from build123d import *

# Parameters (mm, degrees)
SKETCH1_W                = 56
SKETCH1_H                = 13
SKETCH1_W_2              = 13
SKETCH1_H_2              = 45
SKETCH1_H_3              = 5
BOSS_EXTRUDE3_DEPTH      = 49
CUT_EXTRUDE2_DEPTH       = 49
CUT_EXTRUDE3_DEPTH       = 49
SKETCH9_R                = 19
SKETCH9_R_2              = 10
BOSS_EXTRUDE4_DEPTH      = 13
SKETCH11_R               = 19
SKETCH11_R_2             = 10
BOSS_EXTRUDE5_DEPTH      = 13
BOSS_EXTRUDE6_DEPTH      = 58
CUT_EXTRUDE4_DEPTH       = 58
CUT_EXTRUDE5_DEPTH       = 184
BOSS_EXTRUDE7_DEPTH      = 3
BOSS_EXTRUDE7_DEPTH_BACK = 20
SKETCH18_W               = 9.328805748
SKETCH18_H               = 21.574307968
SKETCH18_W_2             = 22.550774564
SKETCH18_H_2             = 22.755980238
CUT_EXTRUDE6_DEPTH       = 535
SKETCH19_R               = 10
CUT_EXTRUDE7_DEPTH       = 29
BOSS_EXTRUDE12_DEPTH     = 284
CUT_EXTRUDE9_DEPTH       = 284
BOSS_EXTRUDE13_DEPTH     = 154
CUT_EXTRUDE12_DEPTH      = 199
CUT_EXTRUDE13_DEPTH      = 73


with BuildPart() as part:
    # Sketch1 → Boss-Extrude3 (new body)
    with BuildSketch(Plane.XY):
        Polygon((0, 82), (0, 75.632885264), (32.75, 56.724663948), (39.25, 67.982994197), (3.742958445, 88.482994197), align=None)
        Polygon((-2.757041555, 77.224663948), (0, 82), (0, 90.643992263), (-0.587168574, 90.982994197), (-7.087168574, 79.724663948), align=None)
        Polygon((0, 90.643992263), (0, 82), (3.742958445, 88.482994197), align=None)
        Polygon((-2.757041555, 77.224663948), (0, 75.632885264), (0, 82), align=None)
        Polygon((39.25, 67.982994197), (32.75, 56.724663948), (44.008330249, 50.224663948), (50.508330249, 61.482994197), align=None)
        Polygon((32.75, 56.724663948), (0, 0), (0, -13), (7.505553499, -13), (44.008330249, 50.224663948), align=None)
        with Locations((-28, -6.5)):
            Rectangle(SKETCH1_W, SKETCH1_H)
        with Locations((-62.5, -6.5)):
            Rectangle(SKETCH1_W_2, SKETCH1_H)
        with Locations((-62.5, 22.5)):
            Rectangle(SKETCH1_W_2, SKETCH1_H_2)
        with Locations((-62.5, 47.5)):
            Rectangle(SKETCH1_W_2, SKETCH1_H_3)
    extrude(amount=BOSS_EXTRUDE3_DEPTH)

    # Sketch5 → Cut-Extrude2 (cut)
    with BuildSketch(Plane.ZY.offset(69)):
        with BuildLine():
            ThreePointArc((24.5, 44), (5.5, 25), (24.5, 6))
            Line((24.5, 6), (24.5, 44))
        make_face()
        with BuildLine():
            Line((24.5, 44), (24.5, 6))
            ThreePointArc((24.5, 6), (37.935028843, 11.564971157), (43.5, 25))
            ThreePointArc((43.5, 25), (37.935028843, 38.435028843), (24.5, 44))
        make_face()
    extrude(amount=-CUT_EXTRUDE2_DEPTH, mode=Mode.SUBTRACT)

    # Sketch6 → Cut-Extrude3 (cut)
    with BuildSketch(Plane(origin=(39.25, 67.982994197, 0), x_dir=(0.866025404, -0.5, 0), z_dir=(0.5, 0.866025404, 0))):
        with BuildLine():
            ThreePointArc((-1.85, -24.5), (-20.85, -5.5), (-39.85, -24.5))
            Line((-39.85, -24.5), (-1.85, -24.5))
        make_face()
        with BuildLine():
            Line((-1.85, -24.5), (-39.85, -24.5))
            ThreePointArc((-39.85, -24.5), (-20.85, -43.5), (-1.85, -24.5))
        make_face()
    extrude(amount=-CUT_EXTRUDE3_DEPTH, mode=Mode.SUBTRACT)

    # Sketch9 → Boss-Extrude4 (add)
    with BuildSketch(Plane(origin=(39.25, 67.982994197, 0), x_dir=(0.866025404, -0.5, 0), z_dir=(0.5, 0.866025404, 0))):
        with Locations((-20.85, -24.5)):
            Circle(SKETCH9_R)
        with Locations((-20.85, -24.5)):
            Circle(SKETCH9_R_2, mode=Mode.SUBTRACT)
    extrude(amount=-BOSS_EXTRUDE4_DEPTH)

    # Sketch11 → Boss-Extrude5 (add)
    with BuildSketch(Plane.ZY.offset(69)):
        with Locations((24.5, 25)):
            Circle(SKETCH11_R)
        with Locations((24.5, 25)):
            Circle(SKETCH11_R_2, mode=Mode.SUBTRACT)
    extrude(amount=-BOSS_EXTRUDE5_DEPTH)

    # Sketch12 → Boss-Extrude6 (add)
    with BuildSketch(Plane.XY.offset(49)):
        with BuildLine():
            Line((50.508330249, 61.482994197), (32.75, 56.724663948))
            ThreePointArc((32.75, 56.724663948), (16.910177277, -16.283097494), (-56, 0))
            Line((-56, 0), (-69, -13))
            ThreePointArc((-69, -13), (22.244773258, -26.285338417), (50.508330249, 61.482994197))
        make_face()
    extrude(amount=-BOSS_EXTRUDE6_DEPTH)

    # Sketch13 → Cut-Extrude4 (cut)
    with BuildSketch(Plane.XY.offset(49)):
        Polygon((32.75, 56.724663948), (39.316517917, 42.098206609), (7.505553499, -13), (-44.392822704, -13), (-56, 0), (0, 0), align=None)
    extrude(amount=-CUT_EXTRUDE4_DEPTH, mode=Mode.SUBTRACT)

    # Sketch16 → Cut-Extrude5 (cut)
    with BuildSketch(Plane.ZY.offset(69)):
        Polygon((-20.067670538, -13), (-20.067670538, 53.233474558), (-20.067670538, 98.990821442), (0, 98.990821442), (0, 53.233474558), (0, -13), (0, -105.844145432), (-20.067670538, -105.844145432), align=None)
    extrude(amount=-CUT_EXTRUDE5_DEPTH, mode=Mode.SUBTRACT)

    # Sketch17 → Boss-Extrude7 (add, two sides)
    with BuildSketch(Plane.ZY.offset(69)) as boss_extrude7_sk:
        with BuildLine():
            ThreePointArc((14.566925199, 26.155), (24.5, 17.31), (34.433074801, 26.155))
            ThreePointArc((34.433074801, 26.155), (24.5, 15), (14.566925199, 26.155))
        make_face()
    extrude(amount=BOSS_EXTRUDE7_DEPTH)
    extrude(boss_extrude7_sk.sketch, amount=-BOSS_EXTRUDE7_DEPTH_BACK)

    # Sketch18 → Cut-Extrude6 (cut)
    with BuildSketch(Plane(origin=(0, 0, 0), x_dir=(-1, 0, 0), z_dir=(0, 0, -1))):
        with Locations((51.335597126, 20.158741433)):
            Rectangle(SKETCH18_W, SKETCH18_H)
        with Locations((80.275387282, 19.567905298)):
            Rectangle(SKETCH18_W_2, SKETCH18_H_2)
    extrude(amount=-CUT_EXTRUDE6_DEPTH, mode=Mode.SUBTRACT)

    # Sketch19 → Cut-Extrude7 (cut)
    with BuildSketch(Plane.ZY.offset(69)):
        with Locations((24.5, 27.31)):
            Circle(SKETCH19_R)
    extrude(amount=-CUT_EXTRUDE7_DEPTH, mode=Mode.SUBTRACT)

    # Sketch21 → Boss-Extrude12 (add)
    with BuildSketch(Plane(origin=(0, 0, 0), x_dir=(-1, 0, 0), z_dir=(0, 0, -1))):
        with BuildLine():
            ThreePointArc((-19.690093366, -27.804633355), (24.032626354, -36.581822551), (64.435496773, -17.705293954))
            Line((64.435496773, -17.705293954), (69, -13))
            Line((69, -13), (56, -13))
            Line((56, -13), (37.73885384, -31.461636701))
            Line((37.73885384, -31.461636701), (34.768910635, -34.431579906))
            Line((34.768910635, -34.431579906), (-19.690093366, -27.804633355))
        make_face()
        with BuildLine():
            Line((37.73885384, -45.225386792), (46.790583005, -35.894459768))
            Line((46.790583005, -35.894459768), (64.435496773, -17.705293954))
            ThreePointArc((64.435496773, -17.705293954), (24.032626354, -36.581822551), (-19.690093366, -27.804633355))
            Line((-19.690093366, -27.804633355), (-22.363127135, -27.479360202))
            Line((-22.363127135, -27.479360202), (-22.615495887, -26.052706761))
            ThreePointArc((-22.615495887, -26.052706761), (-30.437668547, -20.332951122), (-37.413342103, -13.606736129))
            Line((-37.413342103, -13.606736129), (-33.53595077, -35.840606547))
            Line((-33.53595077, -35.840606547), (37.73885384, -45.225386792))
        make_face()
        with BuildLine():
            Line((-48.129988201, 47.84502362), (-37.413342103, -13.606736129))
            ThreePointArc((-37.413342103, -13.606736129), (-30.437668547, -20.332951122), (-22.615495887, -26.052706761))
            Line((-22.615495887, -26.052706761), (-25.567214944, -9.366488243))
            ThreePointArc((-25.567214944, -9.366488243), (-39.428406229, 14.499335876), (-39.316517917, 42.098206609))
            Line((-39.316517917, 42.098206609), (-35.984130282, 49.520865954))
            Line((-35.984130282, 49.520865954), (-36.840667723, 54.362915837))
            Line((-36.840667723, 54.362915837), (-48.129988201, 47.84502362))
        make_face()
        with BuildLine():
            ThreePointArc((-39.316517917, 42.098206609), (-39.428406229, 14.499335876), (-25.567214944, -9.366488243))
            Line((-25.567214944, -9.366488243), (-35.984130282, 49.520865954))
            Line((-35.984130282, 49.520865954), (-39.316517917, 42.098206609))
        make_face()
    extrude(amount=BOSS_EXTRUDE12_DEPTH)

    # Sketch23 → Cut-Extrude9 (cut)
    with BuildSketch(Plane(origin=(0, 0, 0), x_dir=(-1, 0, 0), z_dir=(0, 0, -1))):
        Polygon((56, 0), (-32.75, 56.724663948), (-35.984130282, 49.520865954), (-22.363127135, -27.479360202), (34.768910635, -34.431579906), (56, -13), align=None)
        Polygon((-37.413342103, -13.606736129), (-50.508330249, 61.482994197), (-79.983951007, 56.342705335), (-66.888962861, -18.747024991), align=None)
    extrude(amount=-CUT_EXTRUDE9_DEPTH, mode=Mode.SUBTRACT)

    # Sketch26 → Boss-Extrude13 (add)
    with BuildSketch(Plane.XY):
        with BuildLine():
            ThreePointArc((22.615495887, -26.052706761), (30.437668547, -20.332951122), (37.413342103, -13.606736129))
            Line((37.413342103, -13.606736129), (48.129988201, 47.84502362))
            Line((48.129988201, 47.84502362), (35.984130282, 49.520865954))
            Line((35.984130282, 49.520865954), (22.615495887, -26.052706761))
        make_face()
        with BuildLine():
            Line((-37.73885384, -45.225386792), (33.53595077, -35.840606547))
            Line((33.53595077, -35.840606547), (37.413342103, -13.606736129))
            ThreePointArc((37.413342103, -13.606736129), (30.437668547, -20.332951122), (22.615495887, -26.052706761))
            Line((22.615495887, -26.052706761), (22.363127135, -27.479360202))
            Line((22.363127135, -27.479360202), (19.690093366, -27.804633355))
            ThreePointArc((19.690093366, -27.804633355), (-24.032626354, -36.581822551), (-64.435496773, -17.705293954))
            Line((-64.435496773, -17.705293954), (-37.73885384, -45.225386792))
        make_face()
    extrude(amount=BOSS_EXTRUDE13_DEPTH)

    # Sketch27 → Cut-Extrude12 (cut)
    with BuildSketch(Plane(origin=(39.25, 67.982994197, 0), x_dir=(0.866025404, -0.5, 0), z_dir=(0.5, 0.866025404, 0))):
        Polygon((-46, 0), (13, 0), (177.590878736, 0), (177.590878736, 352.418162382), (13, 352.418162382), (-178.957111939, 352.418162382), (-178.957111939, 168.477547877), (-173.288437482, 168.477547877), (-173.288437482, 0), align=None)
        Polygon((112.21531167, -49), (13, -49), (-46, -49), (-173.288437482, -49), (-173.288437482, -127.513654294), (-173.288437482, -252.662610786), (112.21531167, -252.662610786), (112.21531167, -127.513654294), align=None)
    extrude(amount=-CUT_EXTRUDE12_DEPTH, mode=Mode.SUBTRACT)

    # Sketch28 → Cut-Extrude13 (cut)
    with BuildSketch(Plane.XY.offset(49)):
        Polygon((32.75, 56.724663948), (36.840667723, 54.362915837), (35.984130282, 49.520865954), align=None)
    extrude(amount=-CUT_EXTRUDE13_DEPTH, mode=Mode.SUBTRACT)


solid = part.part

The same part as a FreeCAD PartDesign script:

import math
import FreeCAD as App
import Part
import Sketcher

V = App.Vector
Q = App.Units.Quantity

doc = App.newDocument("Part")
body = doc.addObject("PartDesign::Body", "Body")

# Sketch on XY plane
sketch1 = doc.addObject("Sketcher::SketchObject", "Sketch")
body.addObject(sketch1)
sketch1.AttachmentSupport = (doc.XY_Plane, [""])
sketch1.MapMode = "FlatFace"
sketch1.addGeometry(Part.LineSegment(V(0, 75.6, 0), V(32.8, 56.7, 0)), False)
sketch1.addGeometry(Part.LineSegment(V(32.8, 56.7, 0), V(0, 0, 0)), False)
sketch1.addGeometry(Part.LineSegment(V(0, 0, 0), V(-56, 0, 0)), False)
sketch1.addGeometry(Part.LineSegment(V(-56, 0, 0), V(-56, 50, 0)), False)
sketch1.addGeometry(Part.LineSegment(V(-56, 50, 0), V(-69, 50, 0)), False)
sketch1.addGeometry(Part.LineSegment(V(-69, 50, 0), V(-69, -13, 0)), False)
sketch1.addGeometry(Part.LineSegment(V(-69, -13, 0), V(7.5, -13, 0)), False)
sketch1.addGeometry(Part.LineSegment(V(7.5, -13, 0), V(44, 50.2, 0)), False)
sketch1.addGeometry(Part.LineSegment(V(44, 50.2, 0), V(50.5, 61.5, 0)), False)
sketch1.addGeometry(Part.LineSegment(V(50.5, 61.5, 0), V(39.2, 68, 0)), False)
sketch1.addGeometry(Part.LineSegment(V(39.2, 68, 0), V(3.7, 88.5, 0)), False)
sketch1.addGeometry(Part.LineSegment(V(3.7, 88.5, 0), V(0, 90.6, 0)), False)
sketch1.addGeometry(Part.LineSegment(V(0, 90.6, 0), V(-0.6, 91, 0)), False)
sketch1.addGeometry(Part.LineSegment(V(-0.6, 91, 0), V(-7.1, 79.7, 0)), False)
sketch1.addGeometry(Part.LineSegment(V(-7.1, 79.7, 0), V(-2.8, 77.2, 0)), False)
sketch1.addGeometry(Part.LineSegment(V(-2.8, 77.2, 0), V(0, 75.6, 0)), False)
sketch1.addConstraint(Sketcher.Constraint("Coincident", 0, 2, 1, 1))
sketch1.addConstraint(Sketcher.Constraint("Coincident", 1, 2, 2, 1))
sketch1.addConstraint(Sketcher.Constraint("Coincident", 2, 2, 3, 1))
sketch1.addConstraint(Sketcher.Constraint("Coincident", 3, 2, 4, 1))
sketch1.addConstraint(Sketcher.Constraint("Coincident", 4, 2, 5, 1))
sketch1.addConstraint(Sketcher.Constraint("Coincident", 5, 2, 6, 1))
sketch1.addConstraint(Sketcher.Constraint("Coincident", 6, 2, 7, 1))
sketch1.addConstraint(Sketcher.Constraint("Coincident", 7, 2, 8, 1))
sketch1.addConstraint(Sketcher.Constraint("Coincident", 8, 2, 9, 1))
sketch1.addConstraint(Sketcher.Constraint("Coincident", 9, 2, 10, 1))
sketch1.addConstraint(Sketcher.Constraint("Coincident", 10, 2, 11, 1))
sketch1.addConstraint(Sketcher.Constraint("Coincident", 11, 2, 12, 1))
sketch1.addConstraint(Sketcher.Constraint("Coincident", 12, 2, 13, 1))
sketch1.addConstraint(Sketcher.Constraint("Coincident", 13, 2, 14, 1))
sketch1.addConstraint(Sketcher.Constraint("Coincident", 14, 2, 15, 1))
sketch1.addConstraint(Sketcher.Constraint("Coincident", 15, 2, 0, 1))
sketch1.addConstraint(Sketcher.Constraint("Horizontal", 2))
sketch1.addConstraint(Sketcher.Constraint("Vertical", 3))
sketch1.addConstraint(Sketcher.Constraint("Horizontal", 4))
sketch1.addConstraint(Sketcher.Constraint("Vertical", 5))
sketch1.addConstraint(Sketcher.Constraint("Horizontal", 6))
sketch1.addConstraint(Sketcher.Constraint("Coincident", 1, 2, -1, 1))
sketch1.addConstraint(Sketcher.Constraint("PointOnObject", 11, 2, -2))
sketch1.addConstraint(Sketcher.Constraint("PointOnObject", 15, 2, -2))
sketch1.addConstraint(Sketcher.Constraint("Perpendicular", 0, 1))
sketch1.addConstraint(Sketcher.Constraint("Parallel", 1, 7))
sketch1.addConstraint(Sketcher.Constraint("Parallel", 7, 8))
sketch1.addConstraint(Sketcher.Constraint("Perpendicular", 8, 9))
sketch1.addConstraint(Sketcher.Constraint("Parallel", 9, 10))
sketch1.addConstraint(Sketcher.Constraint("Parallel", 10, 11))
sketch1.addConstraint(Sketcher.Constraint("Parallel", 11, 12))
sketch1.addConstraint(Sketcher.Constraint("Perpendicular", 12, 13))
sketch1.addConstraint(Sketcher.Constraint("Perpendicular", 13, 14))
sketch1.addConstraint(Sketcher.Constraint("Parallel", 14, 15))
sketch1.addConstraint(Sketcher.Constraint("Equal", 8, 9))
sketch1.addConstraint(Sketcher.Constraint("Equal", 9, 13))
sketch1.addConstraint(Sketcher.Constraint("DistanceX", 2, 2, 2, 1, 56.0))
sketch1.addConstraint(Sketcher.Constraint("DistanceX", 4, 2, 4, 1, 13.0))
sketch1.addConstraint(Sketcher.Constraint("DistanceY", 3, 1, 3, 2, 50.0))
sketch1.addConstraint(Sketcher.Constraint("DistanceY", 5, 2, 5, 1, 63.0))
sketch1.addConstraint(Sketcher.Constraint("Angle", 0, Q("-30 deg")))
sketch1.addConstraint(Sketcher.Constraint("Distance", 8, 13.0))
sketch1.addConstraint(Sketcher.Constraint("Distance", 10, 41.0))
sketch1.addConstraint(Sketcher.Constraint("Distance", 14, 5.0))
sketch1.addConstraint(Sketcher.Constraint("DistanceY", 9, 2, 12, 2, 23.0))
sketch1.addConstraint(Sketcher.Constraint("DistanceY", 0, 2, 13, 2, 23.0))
sketch1.addConstraint(Sketcher.Constraint("Distance", 1, 65.5))
pad1 = doc.addObject("PartDesign::Pad", "Pad")
body.addObject(pad1)
pad1.Profile = sketch1
pad1.Length = 49

# Sketch on YZ plane
sketch2 = doc.addObject("Sketcher::SketchObject", "Sketch001")
body.addObject(sketch2)
sketch2.AttachmentSupport = (doc.YZ_Plane, [""])
sketch2.MapMode = "FlatFace"
sketch2.AttachmentOffset = App.Placement(V(0, 0, -69), App.Rotation())
sketch2.addGeometry(Part.ArcOfCircle(Part.Circle(V(25, 24, 0), V(0, 0, 1), 19), math.radians(180), math.radians(360)), False)
sketch2.addGeometry(Part.ArcOfCircle(Part.Circle(V(25, 25, 0), V(0, 0, 1), 19), math.radians(90), math.radians(180)), False)
sketch2.addGeometry(Part.ArcOfCircle(Part.Circle(V(25, 25, 0), V(0, 0, 1), 19), math.radians(0), math.radians(90)), False)
sketch2.addConstraint(Sketcher.Constraint("Tangent", 0, 1, 1, 2))
sketch2.addConstraint(Sketcher.Constraint("Tangent", 1, 1, 2, 2))
sketch2.addConstraint(Sketcher.Constraint("Tangent", 2, 1, 0, 2))
sketch2.addConstraint(Sketcher.Constraint("Horizontal", 2, 3, 0, 1))
sketch2.addConstraint(Sketcher.Constraint("Horizontal", 0, 1, 2, 1))
sketch2.addConstraint(Sketcher.Constraint("Vertical", 2, 3, 1, 1))
sketch2.addConstraint(Sketcher.Constraint("Radius", 0, 19.0))
sketch2.addConstraint(Sketcher.Constraint("DistanceX", -1, 1, 0, 3, 25.0))
sketch2.addConstraint(Sketcher.Constraint("DistanceY", -1, 1, 0, 3, 24.5))
pocket1 = doc.addObject("PartDesign::Pocket", "Pocket")
body.addObject(pocket1)
pocket1.Profile = sketch2
pocket1.Length = 49
pocket1.Reversed = True

# Sketch on an angled plane
sketch3 = doc.addObject("Sketcher::SketchObject", "Sketch002")
body.addObject(sketch3)
sketch3.Placement = App.Placement(V(39.25, 67.982994, 0), App.Rotation(V(0.866025404, -0.5, 0), V(0, 0, -1), V(0.5, 0.866025404, 0), "ZXY"))
sketch3.addGeometry(Part.Circle(V(-21, -25, 0), V(0, 0, 1), 19), False)
sketch3.addConstraint(Sketcher.Constraint("Diameter", 0, 38.0))
sketch3.addConstraint(Sketcher.Constraint("DistanceY", 0, 3, -1, 1, 24.5))
sketch3.addConstraint(Sketcher.Constraint("DistanceX", 0, 3, -1, 1, 20.85))
pocket2 = doc.addObject("PartDesign::Pocket", "Pocket001")
body.addObject(pocket2)
pocket2.Profile = sketch3
pocket2.Length = 49

# Sketch on an angled plane
sketch4 = doc.addObject("Sketcher::SketchObject", "Sketch003")
body.addObject(sketch4)
sketch4.Placement = App.Placement(V(39.25, 67.982994, 0), App.Rotation(V(0.866025404, -0.5, 0), V(0, 0, -1), V(0.5, 0.866025404, 0), "ZXY"))
sketch4.addGeometry(Part.Circle(V(-21, -25, 0), V(0, 0, 1), 19), False)
sketch4.addGeometry(Part.Circle(V(-21, -25, 0), V(0, 0, 1), 10), False)
sketch4.addConstraint(Sketcher.Constraint("Coincident", 1, 3, 0, 3))
sketch4.addConstraint(Sketcher.Constraint("Diameter", 0, 38.0))
sketch4.addConstraint(Sketcher.Constraint("Diameter", 1, 20.0))
sketch4.addConstraint(Sketcher.Constraint("DistanceY", 0, 3, -1, 1, 24.5))
sketch4.addConstraint(Sketcher.Constraint("DistanceX", 0, 3, -1, 1, 20.85))
pad2 = doc.addObject("PartDesign::Pad", "Pad001")
body.addObject(pad2)
pad2.Profile = sketch4
pad2.Length = 13
pad2.Reversed = True

# Sketch on YZ plane
sketch5 = doc.addObject("Sketcher::SketchObject", "Sketch004")
body.addObject(sketch5)
sketch5.AttachmentSupport = (doc.YZ_Plane, [""])
sketch5.MapMode = "FlatFace"
sketch5.AttachmentOffset = App.Placement(V(0, 0, -69), App.Rotation())
sketch5.addGeometry(Part.Circle(V(25, 24, 0), V(0, 0, 1), 19), False)
sketch5.addGeometry(Part.Circle(V(25, 24, 0), V(0, 0, 1), 10), False)
sketch5.addConstraint(Sketcher.Constraint("Coincident", 1, 3, 0, 3))
sketch5.addConstraint(Sketcher.Constraint("Diameter", 0, 38.0))
sketch5.addConstraint(Sketcher.Constraint("Diameter", 1, 20.0))
sketch5.addConstraint(Sketcher.Constraint("DistanceX", -1, 1, 0, 3, 25.0))
sketch5.addConstraint(Sketcher.Constraint("DistanceY", -1, 1, 0, 3, 24.5))
pad3 = doc.addObject("PartDesign::Pad", "Pad002")
body.addObject(pad3)
pad3.Profile = sketch5
pad3.Length = 13

# Sketch on XY plane
sketch6 = doc.addObject("Sketcher::SketchObject", "Sketch005")
body.addObject(sketch6)
sketch6.AttachmentSupport = (doc.XY_Plane, [""])
sketch6.MapMode = "FlatFace"
sketch6.AttachmentOffset = App.Placement(V(0, 0, 49), App.Rotation())
sketch6.addGeometry(Part.LineSegment(V(51, 61, 0), V(33, 57, 0)), False)
sketch6.addGeometry(Part.ArcOfCircle(Part.Circle(V(-11, 28, 0), V(0, 0, 1), 53), math.radians(-148), math.radians(33)), False)
sketch6.addGeometry(Part.LineSegment(V(-56, 0, 0), V(-69, -13, 0)), False)
sketch6.addGeometry(Part.ArcOfCircle(Part.Circle(V(-16, 34, 0), V(0, 0, 1), 71), math.radians(-139), math.radians(22)), False)
sketch6.addConstraint(Sketcher.Constraint("Coincident", 0, 2, 1, 2))
sketch6.addConstraint(Sketcher.Constraint("Coincident", 1, 1, 2, 1))
sketch6.addConstraint(Sketcher.Constraint("Coincident", 2, 2, 3, 1))
sketch6.addConstraint(Sketcher.Constraint("Coincident", 3, 2, 0, 1))
sketch6.addConstraint(Sketcher.Constraint("PointOnObject", 1, 1, -1))
sketch6.addConstraint(Sketcher.Constraint("Equal", 0, 2))
sketch6.addConstraint(Sketcher.Constraint("Angle", 0, Q("-165 deg")))
sketch6.addConstraint(Sketcher.Constraint("Angle", 2, Q("-135 deg")))
sketch6.addConstraint(Sketcher.Constraint("DistanceX", 1, 1, -1, 1, 56.0))
sketch6.addConstraint(Sketcher.Constraint("DistanceX", 2, 2, -1, 1, 69.0))
sketch6.addConstraint(Sketcher.Constraint("DistanceX", -1, 1, 0, 2, 32.75))
sketch6.addConstraint(Sketcher.Constraint("Radius", 1, 52.665595))
sketch6.addConstraint(Sketcher.Constraint("Radius", 3, 71.402243))
sketch6.addConstraint(Sketcher.Constraint("DistanceX", 1, 3, -1, 1, 11.452678))
pad4 = doc.addObject("PartDesign::Pad", "Pad003")
body.addObject(pad4)
pad4.Profile = sketch6
pad4.Length = 58
pad4.Reversed = True

# Sketch on XY plane
sketch7 = doc.addObject("Sketcher::SketchObject", "Sketch006")
body.addObject(sketch7)
sketch7.AttachmentSupport = (doc.XY_Plane, [""])
sketch7.MapMode = "FlatFace"
sketch7.AttachmentOffset = App.Placement(V(0, 0, 49), App.Rotation())
sketch7.addGeometry(Part.LineSegment(V(39, 42, 0), V(33, 57, 0)), False)
sketch7.addGeometry(Part.LineSegment(V(33, 57, 0), V(0, 0, 0)), False)
sketch7.addGeometry(Part.LineSegment(V(0, 0, 0), V(-56, 0, 0)), False)
sketch7.addGeometry(Part.LineSegment(V(-56, 0, 0), V(-44, -13, 0)), False)
sketch7.addGeometry(Part.LineSegment(V(-44, -13, 0), V(8, -13, 0)), False)
sketch7.addGeometry(Part.LineSegment(V(8, -13, 0), V(39, 42, 0)), False)
sketch7.addConstraint(Sketcher.Constraint("Coincident", 0, 2, 1, 1))
sketch7.addConstraint(Sketcher.Constraint("Coincident", 1, 2, 2, 1))
sketch7.addConstraint(Sketcher.Constraint("Coincident", 2, 2, 3, 1))
sketch7.addConstraint(Sketcher.Constraint("Coincident", 3, 2, 4, 1))
sketch7.addConstraint(Sketcher.Constraint("Coincident", 4, 2, 5, 1))
sketch7.addConstraint(Sketcher.Constraint("Coincident", 5, 2, 0, 1))
sketch7.addConstraint(Sketcher.Constraint("Horizontal", 2))
sketch7.addConstraint(Sketcher.Constraint("Horizontal", 4))
sketch7.addConstraint(Sketcher.Constraint("Coincident", 1, 2, -1, 1))
sketch7.addConstraint(Sketcher.Constraint("Parallel", 1, 5))
sketch7.addConstraint(Sketcher.Constraint("DistanceX", 2, 2, 2, 1, 56.0))
sketch7.addConstraint(Sketcher.Constraint("Angle", 1, Q("-120 deg")))
sketch7.addConstraint(Sketcher.Constraint("DistanceY", 3, 2, -1, 1, 13.0))
sketch7.addConstraint(Sketcher.Constraint("Distance", 1, 65.5))
sketch7.addConstraint(Sketcher.Constraint("Distance", 5, 63.621929))
sketch7.addConstraint(Sketcher.Constraint("DistanceX", 4, 1, 4, 2, 51.898376))
sketch7.addConstraint(Sketcher.Constraint("Distance", 0, 16.032854))
pocket3 = doc.addObject("PartDesign::Pocket", "Pocket002")
body.addObject(pocket3)
pocket3.Profile = sketch7
pocket3.Length = 58

# Sketch on YZ plane
sketch8 = doc.addObject("Sketcher::SketchObject", "Sketch007")
body.addObject(sketch8)
sketch8.AttachmentSupport = (doc.YZ_Plane, [""])
sketch8.MapMode = "FlatFace"
sketch8.AttachmentOffset = App.Placement(V(0, 0, -69), App.Rotation())
sketch8.addGeometry(Part.LineSegment(V(99, -20, 0), V(-106, -20, 0)), False)
sketch8.addGeometry(Part.LineSegment(V(-106, -20, 0), V(-106, 0, 0)), False)
sketch8.addGeometry(Part.LineSegment(V(-106, 0, 0), V(99, 0, 0)), False)
sketch8.addGeometry(Part.LineSegment(V(99, 0, 0), V(99, -20, 0)), False)
sketch8.addConstraint(Sketcher.Constraint("Coincident", 0, 2, 1, 1))
sketch8.addConstraint(Sketcher.Constraint("Coincident", 1, 2, 2, 1))
sketch8.addConstraint(Sketcher.Constraint("Coincident", 2, 2, 3, 1))
sketch8.addConstraint(Sketcher.Constraint("Coincident", 3, 2, 0, 1))
sketch8.addConstraint(Sketcher.Constraint("Horizontal", 0))
sketch8.addConstraint(Sketcher.Constraint("Vertical", 1))
sketch8.addConstraint(Sketcher.Constraint("Horizontal", 2))
sketch8.addConstraint(Sketcher.Constraint("Vertical", 3))
sketch8.addConstraint(Sketcher.Constraint("PointOnObject", 1, 2, -1))
sketch8.addConstraint(Sketcher.Constraint("DistanceY", 1, 1, 1, 2, 20.067671))
sketch8.addConstraint(Sketcher.Constraint("DistanceX", 0, 2, 0, 1, 204.834967))
sketch8.addConstraint(Sketcher.Constraint("DistanceX", -1, 1, 2, 2, 98.990821))
pocket4 = doc.addObject("PartDesign::Pocket", "Pocket003")
body.addObject(pocket4)
pocket4.Profile = sketch8
pocket4.Length = 184
pocket4.Reversed = True

# Sketch on YZ plane
sketch9 = doc.addObject("Sketcher::SketchObject", "Sketch008")
body.addObject(sketch9)
sketch9.AttachmentSupport = (doc.YZ_Plane, [""])
sketch9.MapMode = "FlatFace"
sketch9.AttachmentOffset = App.Placement(V(0, 0, -69), App.Rotation())
sketch9.addGeometry(Part.ArcOfCircle(Part.Circle(V(27, 24, 0), V(0, 0, 1), 10), math.radians(97), math.radians(263)), False)
sketch9.addGeometry(Part.ArcOfCircle(Part.Circle(V(25, 24, 0), V(0, 0, 1), 10), math.radians(83), math.radians(277)), False)
sketch9.addConstraint(Sketcher.Constraint("Coincident", 0, 1, 1, 1))
sketch9.addConstraint(Sketcher.Constraint("Coincident", 1, 2, 0, 2))
sketch9.addConstraint(Sketcher.Constraint("Equal", 0, 1))
sketch9.addConstraint(Sketcher.Constraint("Horizontal", 0, 3, 1, 3))
sketch9.addConstraint(Sketcher.Constraint("Radius", 0, 10.0))
sketch9.addConstraint(Sketcher.Constraint("DistanceX", -1, 1, 1, 3, 25.0))
sketch9.addConstraint(Sketcher.Constraint("DistanceY", -1, 1, 0, 3, 24.5))
sketch9.addConstraint(Sketcher.Constraint("DistanceX", -1, 1, 0, 3, 27.31))
pad5 = doc.addObject("PartDesign::Pad", "Pad004")
body.addObject(pad5)
pad5.Profile = sketch9
pad5.Type = "TwoLengths"
pad5.Length = 3
pad5.Length2 = 20
pad5.Reversed = True

# Sketch on XY plane
sketch10 = doc.addObject("Sketcher::SketchObject", "Sketch009")
body.addObject(sketch10)
sketch10.AttachmentSupport = (doc.XY_Plane, [""])
sketch10.MapMode = "FlatFace"
sketch10.addGeometry(Part.LineSegment(V(-47, 31, 0), V(-47, 9, 0)), False)
sketch10.addGeometry(Part.LineSegment(V(-47, 9, 0), V(-56, 9, 0)), False)
sketch10.addGeometry(Part.LineSegment(V(-56, 9, 0), V(-56, 31, 0)), False)
sketch10.addGeometry(Part.LineSegment(V(-56, 31, 0), V(-47, 31, 0)), False)
sketch10.addGeometry(Part.LineSegment(V(-69, 31, 0), V(-69, 8, 0)), False)
sketch10.addGeometry(Part.LineSegment(V(-69, 8, 0), V(-92, 8, 0)), False)
sketch10.addGeometry(Part.LineSegment(V(-92, 8, 0), V(-92, 31, 0)), False)
sketch10.addGeometry(Part.LineSegment(V(-92, 31, 0), V(-69, 31, 0)), False)
sketch10.addConstraint(Sketcher.Constraint("Coincident", 0, 2, 1, 1))
sketch10.addConstraint(Sketcher.Constraint("Coincident", 1, 2, 2, 1))
sketch10.addConstraint(Sketcher.Constraint("Coincident", 2, 2, 3, 1))
sketch10.addConstraint(Sketcher.Constraint("Coincident", 3, 2, 0, 1))
sketch10.addConstraint(Sketcher.Constraint("Coincident", 4, 2, 5, 1))
sketch10.addConstraint(Sketcher.Constraint("Coincident", 5, 2, 6, 1))
sketch10.addConstraint(Sketcher.Constraint("Coincident", 6, 2, 7, 1))
sketch10.addConstraint(Sketcher.Constraint("Coincident", 7, 2, 4, 1))
sketch10.addConstraint(Sketcher.Constraint("Vertical", 0))
sketch10.addConstraint(Sketcher.Constraint("Horizontal", 1))
sketch10.addConstraint(Sketcher.Constraint("Vertical", 2))
sketch10.addConstraint(Sketcher.Constraint("Horizontal", 3))
sketch10.addConstraint(Sketcher.Constraint("Vertical", 4))
sketch10.addConstraint(Sketcher.Constraint("Horizontal", 5))
sketch10.addConstraint(Sketcher.Constraint("Vertical", 6))
sketch10.addConstraint(Sketcher.Constraint("Horizontal", 7))
sketch10.addConstraint(Sketcher.Constraint("Horizontal", 3, 2, 6, 2))
sketch10.addConstraint(Sketcher.Constraint("DistanceX", 1, 2, -1, 1, 56.0))
sketch10.addConstraint(Sketcher.Constraint("DistanceX", 4, 2, -1, 1, 69.0))
sketch10.addConstraint(Sketcher.Constraint("DistanceY", 4, 2, 4, 1, 22.75598))
sketch10.addConstraint(Sketcher.Constraint("DistanceX", 1, 2, 1, 1, 9.328806))
sketch10.addConstraint(Sketcher.Constraint("DistanceX", 5, 2, 5, 1, 22.550775))
sketch10.addConstraint(Sketcher.Constraint("DistanceY", 0, 2, 0, 1, 21.574308))
sketch10.addConstraint(Sketcher.Constraint("DistanceY", -1, 1, 0, 2, 9.371587))
pocket5 = doc.addObject("PartDesign::Pocket", "Pocket004")
body.addObject(pocket5)
pocket5.Profile = sketch10
pocket5.Length = 535
pocket5.Reversed = True

# Sketch on YZ plane
sketch11 = doc.addObject("Sketcher::SketchObject", "Sketch010")
body.addObject(sketch11)
sketch11.AttachmentSupport = (doc.YZ_Plane, [""])
sketch11.MapMode = "FlatFace"
sketch11.AttachmentOffset = App.Placement(V(0, 0, -69), App.Rotation())
sketch11.addGeometry(Part.Circle(V(27, 24, 0), V(0, 0, 1), 10), False)
sketch11.addConstraint(Sketcher.Constraint("Diameter", 0, 20.0))
sketch11.addConstraint(Sketcher.Constraint("DistanceY", -1, 1, 0, 3, 24.5))
sketch11.addConstraint(Sketcher.Constraint("DistanceX", -1, 1, 0, 3, 27.31))
pocket6 = doc.addObject("PartDesign::Pocket", "Pocket005")
body.addObject(pocket6)
pocket6.Profile = sketch11
pocket6.Length = 29
pocket6.Reversed = True

# Sketch on XY plane
sketch12 = doc.addObject("Sketcher::SketchObject", "Sketch011")
body.addObject(sketch12)
sketch12.AttachmentSupport = (doc.XY_Plane, [""])
sketch12.MapMode = "FlatFace"
sketch12.addGeometry(Part.LineSegment(V(-64.4, -17.7, 0), V(-69, -13, 0)), False)
sketch12.addGeometry(Part.LineSegment(V(-69, -13, 0), V(-56, -13, 0)), False)
sketch12.addGeometry(Part.LineSegment(V(-56, -13, 0), V(-37.7, -31.5, 0)), False)
sketch12.addGeometry(Part.LineSegment(V(-37.7, -31.5, 0), V(-34.8, -34.4, 0)), False)
sketch12.addGeometry(Part.LineSegment(V(-34.8, -34.4, 0), V(19.7, -27.8, 0)), False)
sketch12.addGeometry(Part.LineSegment(V(19.7, -27.8, 0), V(22.4, -27.5, 0)), False)
sketch12.addGeometry(Part.LineSegment(V(22.4, -27.5, 0), V(22.6, -26.1, 0)), False)
sketch12.addGeometry(Part.LineSegment(V(22.6, -26.1, 0), V(25.6, -9.4, 0)), False)
sketch12.addGeometry(Part.LineSegment(V(25.6, -9.4, 0), V(36, 49.5, 0)), False)
sketch12.addGeometry(Part.LineSegment(V(36, 49.5, 0), V(36.8, 54.4, 0)), False)
sketch12.addGeometry(Part.LineSegment(V(36.8, 54.4, 0), V(48.1, 47.8, 0)), False)
sketch12.addGeometry(Part.LineSegment(V(48.1, 47.8, 0), V(37.4, -13.6, 0)), False)
sketch12.addGeometry(Part.LineSegment(V(37.4, -13.6, 0), V(33.5, -35.8, 0)), False)
sketch12.addGeometry(Part.LineSegment(V(33.5, -35.8, 0), V(-37.7, -45.2, 0)), False)
sketch12.addGeometry(Part.LineSegment(V(-37.7, -45.2, 0), V(-46.8, -35.9, 0)), False)
sketch12.addGeometry(Part.LineSegment(V(-46.8, -35.9, 0), V(-64.4, -17.7, 0)), False)
sketch12.addConstraint(Sketcher.Constraint("Coincident", 0, 2, 1, 1))
sketch12.addConstraint(Sketcher.Constraint("Coincident", 1, 2, 2, 1))
sketch12.addConstraint(Sketcher.Constraint("Coincident", 2, 2, 3, 1))
sketch12.addConstraint(Sketcher.Constraint("Coincident", 3, 2, 4, 1))
sketch12.addConstraint(Sketcher.Constraint("Coincident", 4, 2, 5, 1))
sketch12.addConstraint(Sketcher.Constraint("Coincident", 5, 2, 6, 1))
sketch12.addConstraint(Sketcher.Constraint("Coincident", 6, 2, 7, 1))
sketch12.addConstraint(Sketcher.Constraint("Coincident", 7, 2, 8, 1))
sketch12.addConstraint(Sketcher.Constraint("Coincident", 8, 2, 9, 1))
sketch12.addConstraint(Sketcher.Constraint("Coincident", 9, 2, 10, 1))
sketch12.addConstraint(Sketcher.Constraint("Coincident", 10, 2, 11, 1))
sketch12.addConstraint(Sketcher.Constraint("Coincident", 11, 2, 12, 1))
sketch12.addConstraint(Sketcher.Constraint("Coincident", 12, 2, 13, 1))
sketch12.addConstraint(Sketcher.Constraint("Coincident", 13, 2, 14, 1))
sketch12.addConstraint(Sketcher.Constraint("Coincident", 14, 2, 15, 1))
sketch12.addConstraint(Sketcher.Constraint("Coincident", 15, 2, 0, 1))
sketch12.addConstraint(Sketcher.Constraint("Horizontal", 1))
sketch12.addConstraint(Sketcher.Constraint("Parallel", 4, 5))
sketch12.addConstraint(Sketcher.Constraint("Parallel", 6, 7))
sketch12.addConstraint(Sketcher.Constraint("Parallel", 7, 8))
sketch12.addConstraint(Sketcher.Constraint("Parallel", 8, 9))
sketch12.addConstraint(Sketcher.Constraint("Parallel", 11, 12))
sketch12.addConstraint(Sketcher.Constraint("Parallel", 0, 14))
sketch12.addConstraint(Sketcher.Constraint("Parallel", 14, 15))
sketch12.addConstraint(Sketcher.Constraint("Vertical", 2, 2, 13, 2))
sketch12.addConstraint(Sketcher.Constraint("DistanceX", 1, 1, 1, 2, 13.0))
sketch12.addConstraint(Sketcher.Constraint("Angle", 3, Q("-45 deg")))
sketch12.addConstraint(Sketcher.Constraint("Angle", 10, Q("-30 deg")))
sketch12.addConstraint(Sketcher.Constraint("Distance", 14, 13.0))
sketch12.addConstraint(Sketcher.Constraint("DistanceX", 0, 2, -1, 1, 69.0))
sketch12.addConstraint(Sketcher.Constraint("DistanceY", 0, 2, -1, 1, 13.0))
sketch12.addConstraint(Sketcher.Constraint("Distance", 13, 71.889998))
sketch12.addConstraint(Sketcher.Constraint("DistanceY", 4, 2, 8, 2, 77.325499))
sketch12.addConstraint(Sketcher.Constraint("DistanceY", 12, 2, 6, 2, 9.7879))
sketch12.addConstraint(Sketcher.Constraint("Distance", 4, 54.860729))
sketch12.addConstraint(Sketcher.Constraint("Distance", 5, 2.692752))
sketch12.addConstraint(Sketcher.Constraint("Distance", 7, 16.945281))
sketch12.addConstraint(Sketcher.Constraint("Distance", 8, 59.80161))
sketch12.addConstraint(Sketcher.Constraint("Distance", 12, 22.56943))
sketch12.addConstraint(Sketcher.Constraint("DistanceX", 3, 2, -1, 1, 34.768911))
sketch12.addConstraint(Sketcher.Constraint("DistanceY", 3, 2, -1, 1, 34.43158))
sketch12.addConstraint(Sketcher.Constraint("DistanceY", 5, 2, -1, 1, 27.47936))
sketch12.addConstraint(Sketcher.Constraint("DistanceY", 7, 2, -1, 1, 9.366488))
sketch12.addConstraint(Sketcher.Constraint("DistanceX", -1, 1, 10, 2, 48.129988))
sketch12.addConstraint(Sketcher.Constraint("DistanceX", -1, 1, 12, 2, 33.535951))
sketch12.addConstraint(Sketcher.Constraint("DistanceY", 14, 2, -1, 1, 35.89446))
sketch12.addConstraint(Sketcher.Constraint("DistanceY", 8, 2, 9, 2, 4.84205))
sketch12.addConstraint(Sketcher.Constraint("Distance", 0, 6.555492))
pad6 = doc.addObject("PartDesign::Pad", "Pad005")
body.addObject(pad6)
pad6.Profile = sketch12
pad6.Length = 284
pad6.Reversed = True

# Sketch on XY plane
sketch13 = doc.addObject("Sketcher::SketchObject", "Sketch012")
body.addObject(sketch13)
sketch13.AttachmentSupport = (doc.XY_Plane, [""])
sketch13.MapMode = "FlatFace"
sketch13.addGeometry(Part.LineSegment(V(-56, 0, 0), V(33, 57, 0)), False)
sketch13.addGeometry(Part.LineSegment(V(33, 57, 0), V(36, 50, 0)), False)
sketch13.addGeometry(Part.LineSegment(V(36, 50, 0), V(22, -27, 0)), False)
sketch13.addGeometry(Part.LineSegment(V(22, -27, 0), V(-35, -34, 0)), False)
sketch13.addGeometry(Part.LineSegment(V(-35, -34, 0), V(-56, -13, 0)), False)
sketch13.addGeometry(Part.LineSegment(V(-56, -13, 0), V(-56, 0, 0)), False)
sketch13.addGeometry(Part.LineSegment(V(37, -14, 0), V(51, 61, 0)), False)
sketch13.addGeometry(Part.LineSegment(V(51, 61, 0), V(80, 56, 0)), False)
sketch13.addGeometry(Part.LineSegment(V(80, 56, 0), V(67, -19, 0)), False)
sketch13.addGeometry(Part.LineSegment(V(67, -19, 0), V(37, -14, 0)), False)
sketch13.addConstraint(Sketcher.Constraint("Coincident", 0, 2, 1, 1))
sketch13.addConstraint(Sketcher.Constraint("Coincident", 1, 2, 2, 1))
sketch13.addConstraint(Sketcher.Constraint("Coincident", 2, 2, 3, 1))
sketch13.addConstraint(Sketcher.Constraint("Coincident", 3, 2, 4, 1))
sketch13.addConstraint(Sketcher.Constraint("Coincident", 4, 2, 5, 1))
sketch13.addConstraint(Sketcher.Constraint("Coincident", 5, 2, 0, 1))
sketch13.addConstraint(Sketcher.Constraint("Coincident", 6, 2, 7, 1))
sketch13.addConstraint(Sketcher.Constraint("Coincident", 7, 2, 8, 1))
sketch13.addConstraint(Sketcher.Constraint("Coincident", 8, 2, 9, 1))
sketch13.addConstraint(Sketcher.Constraint("Coincident", 9, 2, 6, 1))
sketch13.addConstraint(Sketcher.Constraint("Vertical", 5))
sketch13.addConstraint(Sketcher.Constraint("PointOnObject", 5, 2, -1))
sketch13.addConstraint(Sketcher.Constraint("Perpendicular", 6, 7))
sketch13.addConstraint(Sketcher.Constraint("Perpendicular", 7, 8))
sketch13.addConstraint(Sketcher.Constraint("Perpendicular", 8, 9))
sketch13.addConstraint(Sketcher.Constraint("DistanceY", 5, 1, 5, 2, 13.0))
sketch13.addConstraint(Sketcher.Constraint("DistanceX", 4, 2, -1, 1, 56.0))
sketch13.addConstraint(Sketcher.Constraint("DistanceX", -1, 1, 0, 2, 32.75))
sketch13.addConstraint(Sketcher.Constraint("DistanceX", 1, 2, 6, 2, 14.5242))
sketch13.addConstraint(Sketcher.Constraint("DistanceY", 9, 2, 0, 2, 70.3314))
sketch13.addConstraint(Sketcher.Constraint("Distance", 3, 57.55348))
sketch13.addConstraint(Sketcher.Constraint("DistanceX", -1, 1, 1, 2, 35.98413))
sketch13.addConstraint(Sketcher.Constraint("DistanceY", 2, 2, -1, 1, 27.47936))
sketch13.addConstraint(Sketcher.Constraint("DistanceX", 3, 2, -1, 1, 34.768911))
sketch13.addConstraint(Sketcher.Constraint("DistanceY", 3, 2, -1, 1, 34.43158))
sketch13.addConstraint(Sketcher.Constraint("DistanceX", -1, 1, 7, 2, 79.983951))
sketch13.addConstraint(Sketcher.Constraint("DistanceY", 0, 2, 6, 2, 4.75833))
sketch13.addConstraint(Sketcher.Constraint("DistanceY", 1, 2, 6, 2, 11.962128))
sketch13.addConstraint(Sketcher.Constraint("DistanceY", 7, 2, 6, 2, 5.140289))
sketch13.addConstraint(Sketcher.Constraint("Distance", 0, 105.329246))
pocket7 = doc.addObject("PartDesign::Pocket", "Pocket006")
body.addObject(pocket7)
pocket7.Profile = sketch13
pocket7.Length = 284
pocket7.Reversed = True

# Sketch on XY plane
sketch14 = doc.addObject("Sketcher::SketchObject", "Sketch013")
body.addObject(sketch14)
sketch14.AttachmentSupport = (doc.XY_Plane, [""])
sketch14.MapMode = "FlatFace"
sketch14.addGeometry(Part.LineSegment(V(37.4, -13.6, 0), V(48.1, 47.8, 0)), False)
sketch14.addGeometry(Part.LineSegment(V(48.1, 47.8, 0), V(36, 49.5, 0)), False)
sketch14.addGeometry(Part.LineSegment(V(36, 49.5, 0), V(22.6, -26.1, 0)), False)
sketch14.addGeometry(Part.LineSegment(V(22.6, -26.1, 0), V(22.4, -27.5, 0)), False)
sketch14.addGeometry(Part.LineSegment(V(22.4, -27.5, 0), V(19.7, -27.8, 0)), False)
sketch14.addGeometry(Part.ArcOfCircle(Part.Circle(V(-15.5, 34.3, 0), V(0, 0, 1), 71.4), math.radians(-133), math.radians(-60)), False)
sketch14.addGeometry(Part.LineSegment(V(-64.4, -17.7, 0), V(-37.7, -45.2, 0)), False)
sketch14.addGeometry(Part.LineSegment(V(-37.7, -45.2, 0), V(33.5, -35.8, 0)), False)
sketch14.addGeometry(Part.LineSegment(V(33.5, -35.8, 0), V(37.4, -13.6, 0)), False)
sketch14.addConstraint(Sketcher.Constraint("Coincident", 0, 2, 1, 1))
sketch14.addConstraint(Sketcher.Constraint("Coincident", 1, 2, 2, 1))
sketch14.addConstraint(Sketcher.Constraint("Coincident", 2, 2, 3, 1))
sketch14.addConstraint(Sketcher.Constraint("Coincident", 3, 2, 4, 1))
sketch14.addConstraint(Sketcher.Constraint("Coincident", 4, 2, 5, 2))
sketch14.addConstraint(Sketcher.Constraint("Coincident", 5, 1, 6, 1))
sketch14.addConstraint(Sketcher.Constraint("Coincident", 6, 2, 7, 1))
sketch14.addConstraint(Sketcher.Constraint("Coincident", 7, 2, 8, 1))
sketch14.addConstraint(Sketcher.Constraint("Coincident", 8, 2, 0, 1))
sketch14.addConstraint(Sketcher.Constraint("Parallel", 2, 3))
sketch14.addConstraint(Sketcher.Constraint("Parallel", 0, 8))
sketch14.addConstraint(Sketcher.Constraint("Distance", 7, 71.889998))
sketch14.addConstraint(Sketcher.Constraint("Radius", 5, 71.402243))
sketch14.addConstraint(Sketcher.Constraint("DistanceY", 4, 2, 1, 2, 77.325499))
sketch14.addConstraint(Sketcher.Constraint("DistanceY", 7, 2, 2, 2, 9.7879))
sketch14.addConstraint(Sketcher.Constraint("Distance", 2, 76.746891))
sketch14.addConstraint(Sketcher.Constraint("Distance", 4, 2.692752))
sketch14.addConstraint(Sketcher.Constraint("Distance", 8, 22.56943))
sketch14.addConstraint(Sketcher.Constraint("DistanceX", -1, 1, 0, 2, 48.129988))
sketch14.addConstraint(Sketcher.Constraint("DistanceX", -1, 1, 1, 2, 35.98413))
sketch14.addConstraint(Sketcher.Constraint("DistanceY", 3, 2, -1, 1, 27.47936))
sketch14.addConstraint(Sketcher.Constraint("DistanceX", -1, 1, 7, 2, 33.535951))
sketch14.addConstraint(Sketcher.Constraint("DistanceY", 5, 3, 0, 2, 13.533639))
sketch14.addConstraint(Sketcher.Constraint("DistanceY", 5, 3, 1, 2, 15.209481))
sketch14.addConstraint(Sketcher.Constraint("DistanceX", 5, 3, 2, 2, 38.13734))
sketch14.addConstraint(Sketcher.Constraint("DistanceY", 2, 2, 5, 3, 60.364092))
sketch14.addConstraint(Sketcher.Constraint("DistanceY", 5, 1, 5, 3, 52.016679))
sketch14.addConstraint(Sketcher.Constraint("DistanceX", 6, 2, 3, 2, 60.101981))
pad7 = doc.addObject("PartDesign::Pad", "Pad006")
body.addObject(pad7)
pad7.Profile = sketch14
pad7.Length = 154

# Sketch on an angled plane
sketch15 = doc.addObject("Sketcher::SketchObject", "Sketch014")
body.addObject(sketch15)
sketch15.Placement = App.Placement(V(39.25, 67.982994, 0), App.Rotation(V(0.866025404, -0.5, 0), V(0, 0, -1), V(0.5, 0.866025404, 0), "ZXY"))
sketch15.addGeometry(Part.LineSegment(V(178, 0, 0), V(178, 352, 0)), False)
sketch15.addGeometry(Part.LineSegment(V(178, 352, 0), V(-179, 352, 0)), False)
sketch15.addGeometry(Part.LineSegment(V(-179, 352, 0), V(-179, 168, 0)), False)
sketch15.addGeometry(Part.LineSegment(V(-179, 168, 0), V(-173, 168, 0)), False)
sketch15.addGeometry(Part.LineSegment(V(-173, 168, 0), V(-173, 0, 0)), False)
sketch15.addGeometry(Part.LineSegment(V(-173, 0, 0), V(178, 0, 0)), False)
sketch15.addGeometry(Part.LineSegment(V(112, -49, 0), V(-173, -49, 0)), False)
sketch15.addGeometry(Part.LineSegment(V(-173, -49, 0), V(-173, -253, 0)), False)
sketch15.addGeometry(Part.LineSegment(V(-173, -253, 0), V(112, -253, 0)), False)
sketch15.addGeometry(Part.LineSegment(V(112, -253, 0), V(112, -49, 0)), False)
sketch15.addConstraint(Sketcher.Constraint("Coincident", 0, 2, 1, 1))
sketch15.addConstraint(Sketcher.Constraint("Coincident", 1, 2, 2, 1))
sketch15.addConstraint(Sketcher.Constraint("Coincident", 2, 2, 3, 1))
sketch15.addConstraint(Sketcher.Constraint("Coincident", 3, 2, 4, 1))
sketch15.addConstraint(Sketcher.Constraint("Coincident", 4, 2, 5, 1))
sketch15.addConstraint(Sketcher.Constraint("Coincident", 5, 2, 0, 1))
sketch15.addConstraint(Sketcher.Constraint("Coincident", 6, 2, 7, 1))
sketch15.addConstraint(Sketcher.Constraint("Coincident", 7, 2, 8, 1))
sketch15.addConstraint(Sketcher.Constraint("Coincident", 8, 2, 9, 1))
sketch15.addConstraint(Sketcher.Constraint("Coincident", 9, 2, 6, 1))
sketch15.addConstraint(Sketcher.Constraint("Vertical", 0))
sketch15.addConstraint(Sketcher.Constraint("Horizontal", 1))
sketch15.addConstraint(Sketcher.Constraint("Vertical", 2))
sketch15.addConstraint(Sketcher.Constraint("Horizontal", 3))
sketch15.addConstraint(Sketcher.Constraint("Vertical", 4))
sketch15.addConstraint(Sketcher.Constraint("Horizontal", 5))
sketch15.addConstraint(Sketcher.Constraint("Horizontal", 6))
sketch15.addConstraint(Sketcher.Constraint("Vertical", 7))
sketch15.addConstraint(Sketcher.Constraint("Horizontal", 8))
sketch15.addConstraint(Sketcher.Constraint("Vertical", 9))
sketch15.addConstraint(Sketcher.Constraint("PointOnObject", 4, 2, -1))
sketch15.addConstraint(Sketcher.Constraint("Vertical", 4, 2, 6, 2))
sketch15.addConstraint(Sketcher.Constraint("DistanceY", 6, 2, -1, 1, 49.0))
sketch15.addConstraint(Sketcher.Constraint("DistanceX", 1, 2, 1, 1, 356.547991))
sketch15.addConstraint(Sketcher.Constraint("DistanceX", 6, 2, 6, 1, 285.503749))
sketch15.addConstraint(Sketcher.Constraint("DistanceY", 4, 2, 4, 1, 168.477548))
sketch15.addConstraint(Sketcher.Constraint("DistanceY", 7, 2, 7, 1, 203.662611))
sketch15.addConstraint(Sketcher.Constraint("DistanceX", 3, 1, 3, 2, 5.668674))
sketch15.addConstraint(Sketcher.Constraint("DistanceY", 0, 1, 0, 2, 352.418163))
sketch15.addConstraint(Sketcher.Constraint("DistanceX", -1, 1, 0, 2, 177.590879))
pocket8 = doc.addObject("PartDesign::Pocket", "Pocket007")
body.addObject(pocket8)
pocket8.Profile = sketch15
pocket8.Length = 199

# Sketch on XY plane
sketch16 = doc.addObject("Sketcher::SketchObject", "Sketch015")
body.addObject(sketch16)
sketch16.AttachmentSupport = (doc.XY_Plane, [""])
sketch16.MapMode = "FlatFace"
sketch16.AttachmentOffset = App.Placement(V(0, 0, 49), App.Rotation())
sketch16.addGeometry(Part.LineSegment(V(36.8, 54.4, 0), V(32.8, 56.7, 0)), False)
sketch16.addGeometry(Part.LineSegment(V(32.8, 56.7, 0), V(36, 49.5, 0)), False)
sketch16.addGeometry(Part.LineSegment(V(36, 49.5, 0), V(36.8, 54.4, 0)), False)
sketch16.addConstraint(Sketcher.Constraint("Coincident", 0, 2, 1, 1))
sketch16.addConstraint(Sketcher.Constraint("Coincident", 1, 2, 2, 1))
sketch16.addConstraint(Sketcher.Constraint("Coincident", 2, 2, 0, 1))
sketch16.addConstraint(Sketcher.Constraint("Angle", 0, Q("150 deg")))
sketch16.addConstraint(Sketcher.Constraint("DistanceX", -1, 1, 0, 2, 32.75))
sketch16.addConstraint(Sketcher.Constraint("DistanceX", -1, 1, 1, 2, 35.98413))
sketch16.addConstraint(Sketcher.Constraint("DistanceY", 2, 2, 0, 2, 2.361748))
sketch16.addConstraint(Sketcher.Constraint("DistanceY", 1, 2, 2, 2, 4.84205))
sketch16.addConstraint(Sketcher.Constraint("DistanceY", -1, 1, 0, 2, 56.724664))
pocket9 = doc.addObject("PartDesign::Pocket", "Pocket008")
body.addObject(pocket9)
pocket9.Profile = sketch16
pocket9.Length = 73

doc.recompute()
